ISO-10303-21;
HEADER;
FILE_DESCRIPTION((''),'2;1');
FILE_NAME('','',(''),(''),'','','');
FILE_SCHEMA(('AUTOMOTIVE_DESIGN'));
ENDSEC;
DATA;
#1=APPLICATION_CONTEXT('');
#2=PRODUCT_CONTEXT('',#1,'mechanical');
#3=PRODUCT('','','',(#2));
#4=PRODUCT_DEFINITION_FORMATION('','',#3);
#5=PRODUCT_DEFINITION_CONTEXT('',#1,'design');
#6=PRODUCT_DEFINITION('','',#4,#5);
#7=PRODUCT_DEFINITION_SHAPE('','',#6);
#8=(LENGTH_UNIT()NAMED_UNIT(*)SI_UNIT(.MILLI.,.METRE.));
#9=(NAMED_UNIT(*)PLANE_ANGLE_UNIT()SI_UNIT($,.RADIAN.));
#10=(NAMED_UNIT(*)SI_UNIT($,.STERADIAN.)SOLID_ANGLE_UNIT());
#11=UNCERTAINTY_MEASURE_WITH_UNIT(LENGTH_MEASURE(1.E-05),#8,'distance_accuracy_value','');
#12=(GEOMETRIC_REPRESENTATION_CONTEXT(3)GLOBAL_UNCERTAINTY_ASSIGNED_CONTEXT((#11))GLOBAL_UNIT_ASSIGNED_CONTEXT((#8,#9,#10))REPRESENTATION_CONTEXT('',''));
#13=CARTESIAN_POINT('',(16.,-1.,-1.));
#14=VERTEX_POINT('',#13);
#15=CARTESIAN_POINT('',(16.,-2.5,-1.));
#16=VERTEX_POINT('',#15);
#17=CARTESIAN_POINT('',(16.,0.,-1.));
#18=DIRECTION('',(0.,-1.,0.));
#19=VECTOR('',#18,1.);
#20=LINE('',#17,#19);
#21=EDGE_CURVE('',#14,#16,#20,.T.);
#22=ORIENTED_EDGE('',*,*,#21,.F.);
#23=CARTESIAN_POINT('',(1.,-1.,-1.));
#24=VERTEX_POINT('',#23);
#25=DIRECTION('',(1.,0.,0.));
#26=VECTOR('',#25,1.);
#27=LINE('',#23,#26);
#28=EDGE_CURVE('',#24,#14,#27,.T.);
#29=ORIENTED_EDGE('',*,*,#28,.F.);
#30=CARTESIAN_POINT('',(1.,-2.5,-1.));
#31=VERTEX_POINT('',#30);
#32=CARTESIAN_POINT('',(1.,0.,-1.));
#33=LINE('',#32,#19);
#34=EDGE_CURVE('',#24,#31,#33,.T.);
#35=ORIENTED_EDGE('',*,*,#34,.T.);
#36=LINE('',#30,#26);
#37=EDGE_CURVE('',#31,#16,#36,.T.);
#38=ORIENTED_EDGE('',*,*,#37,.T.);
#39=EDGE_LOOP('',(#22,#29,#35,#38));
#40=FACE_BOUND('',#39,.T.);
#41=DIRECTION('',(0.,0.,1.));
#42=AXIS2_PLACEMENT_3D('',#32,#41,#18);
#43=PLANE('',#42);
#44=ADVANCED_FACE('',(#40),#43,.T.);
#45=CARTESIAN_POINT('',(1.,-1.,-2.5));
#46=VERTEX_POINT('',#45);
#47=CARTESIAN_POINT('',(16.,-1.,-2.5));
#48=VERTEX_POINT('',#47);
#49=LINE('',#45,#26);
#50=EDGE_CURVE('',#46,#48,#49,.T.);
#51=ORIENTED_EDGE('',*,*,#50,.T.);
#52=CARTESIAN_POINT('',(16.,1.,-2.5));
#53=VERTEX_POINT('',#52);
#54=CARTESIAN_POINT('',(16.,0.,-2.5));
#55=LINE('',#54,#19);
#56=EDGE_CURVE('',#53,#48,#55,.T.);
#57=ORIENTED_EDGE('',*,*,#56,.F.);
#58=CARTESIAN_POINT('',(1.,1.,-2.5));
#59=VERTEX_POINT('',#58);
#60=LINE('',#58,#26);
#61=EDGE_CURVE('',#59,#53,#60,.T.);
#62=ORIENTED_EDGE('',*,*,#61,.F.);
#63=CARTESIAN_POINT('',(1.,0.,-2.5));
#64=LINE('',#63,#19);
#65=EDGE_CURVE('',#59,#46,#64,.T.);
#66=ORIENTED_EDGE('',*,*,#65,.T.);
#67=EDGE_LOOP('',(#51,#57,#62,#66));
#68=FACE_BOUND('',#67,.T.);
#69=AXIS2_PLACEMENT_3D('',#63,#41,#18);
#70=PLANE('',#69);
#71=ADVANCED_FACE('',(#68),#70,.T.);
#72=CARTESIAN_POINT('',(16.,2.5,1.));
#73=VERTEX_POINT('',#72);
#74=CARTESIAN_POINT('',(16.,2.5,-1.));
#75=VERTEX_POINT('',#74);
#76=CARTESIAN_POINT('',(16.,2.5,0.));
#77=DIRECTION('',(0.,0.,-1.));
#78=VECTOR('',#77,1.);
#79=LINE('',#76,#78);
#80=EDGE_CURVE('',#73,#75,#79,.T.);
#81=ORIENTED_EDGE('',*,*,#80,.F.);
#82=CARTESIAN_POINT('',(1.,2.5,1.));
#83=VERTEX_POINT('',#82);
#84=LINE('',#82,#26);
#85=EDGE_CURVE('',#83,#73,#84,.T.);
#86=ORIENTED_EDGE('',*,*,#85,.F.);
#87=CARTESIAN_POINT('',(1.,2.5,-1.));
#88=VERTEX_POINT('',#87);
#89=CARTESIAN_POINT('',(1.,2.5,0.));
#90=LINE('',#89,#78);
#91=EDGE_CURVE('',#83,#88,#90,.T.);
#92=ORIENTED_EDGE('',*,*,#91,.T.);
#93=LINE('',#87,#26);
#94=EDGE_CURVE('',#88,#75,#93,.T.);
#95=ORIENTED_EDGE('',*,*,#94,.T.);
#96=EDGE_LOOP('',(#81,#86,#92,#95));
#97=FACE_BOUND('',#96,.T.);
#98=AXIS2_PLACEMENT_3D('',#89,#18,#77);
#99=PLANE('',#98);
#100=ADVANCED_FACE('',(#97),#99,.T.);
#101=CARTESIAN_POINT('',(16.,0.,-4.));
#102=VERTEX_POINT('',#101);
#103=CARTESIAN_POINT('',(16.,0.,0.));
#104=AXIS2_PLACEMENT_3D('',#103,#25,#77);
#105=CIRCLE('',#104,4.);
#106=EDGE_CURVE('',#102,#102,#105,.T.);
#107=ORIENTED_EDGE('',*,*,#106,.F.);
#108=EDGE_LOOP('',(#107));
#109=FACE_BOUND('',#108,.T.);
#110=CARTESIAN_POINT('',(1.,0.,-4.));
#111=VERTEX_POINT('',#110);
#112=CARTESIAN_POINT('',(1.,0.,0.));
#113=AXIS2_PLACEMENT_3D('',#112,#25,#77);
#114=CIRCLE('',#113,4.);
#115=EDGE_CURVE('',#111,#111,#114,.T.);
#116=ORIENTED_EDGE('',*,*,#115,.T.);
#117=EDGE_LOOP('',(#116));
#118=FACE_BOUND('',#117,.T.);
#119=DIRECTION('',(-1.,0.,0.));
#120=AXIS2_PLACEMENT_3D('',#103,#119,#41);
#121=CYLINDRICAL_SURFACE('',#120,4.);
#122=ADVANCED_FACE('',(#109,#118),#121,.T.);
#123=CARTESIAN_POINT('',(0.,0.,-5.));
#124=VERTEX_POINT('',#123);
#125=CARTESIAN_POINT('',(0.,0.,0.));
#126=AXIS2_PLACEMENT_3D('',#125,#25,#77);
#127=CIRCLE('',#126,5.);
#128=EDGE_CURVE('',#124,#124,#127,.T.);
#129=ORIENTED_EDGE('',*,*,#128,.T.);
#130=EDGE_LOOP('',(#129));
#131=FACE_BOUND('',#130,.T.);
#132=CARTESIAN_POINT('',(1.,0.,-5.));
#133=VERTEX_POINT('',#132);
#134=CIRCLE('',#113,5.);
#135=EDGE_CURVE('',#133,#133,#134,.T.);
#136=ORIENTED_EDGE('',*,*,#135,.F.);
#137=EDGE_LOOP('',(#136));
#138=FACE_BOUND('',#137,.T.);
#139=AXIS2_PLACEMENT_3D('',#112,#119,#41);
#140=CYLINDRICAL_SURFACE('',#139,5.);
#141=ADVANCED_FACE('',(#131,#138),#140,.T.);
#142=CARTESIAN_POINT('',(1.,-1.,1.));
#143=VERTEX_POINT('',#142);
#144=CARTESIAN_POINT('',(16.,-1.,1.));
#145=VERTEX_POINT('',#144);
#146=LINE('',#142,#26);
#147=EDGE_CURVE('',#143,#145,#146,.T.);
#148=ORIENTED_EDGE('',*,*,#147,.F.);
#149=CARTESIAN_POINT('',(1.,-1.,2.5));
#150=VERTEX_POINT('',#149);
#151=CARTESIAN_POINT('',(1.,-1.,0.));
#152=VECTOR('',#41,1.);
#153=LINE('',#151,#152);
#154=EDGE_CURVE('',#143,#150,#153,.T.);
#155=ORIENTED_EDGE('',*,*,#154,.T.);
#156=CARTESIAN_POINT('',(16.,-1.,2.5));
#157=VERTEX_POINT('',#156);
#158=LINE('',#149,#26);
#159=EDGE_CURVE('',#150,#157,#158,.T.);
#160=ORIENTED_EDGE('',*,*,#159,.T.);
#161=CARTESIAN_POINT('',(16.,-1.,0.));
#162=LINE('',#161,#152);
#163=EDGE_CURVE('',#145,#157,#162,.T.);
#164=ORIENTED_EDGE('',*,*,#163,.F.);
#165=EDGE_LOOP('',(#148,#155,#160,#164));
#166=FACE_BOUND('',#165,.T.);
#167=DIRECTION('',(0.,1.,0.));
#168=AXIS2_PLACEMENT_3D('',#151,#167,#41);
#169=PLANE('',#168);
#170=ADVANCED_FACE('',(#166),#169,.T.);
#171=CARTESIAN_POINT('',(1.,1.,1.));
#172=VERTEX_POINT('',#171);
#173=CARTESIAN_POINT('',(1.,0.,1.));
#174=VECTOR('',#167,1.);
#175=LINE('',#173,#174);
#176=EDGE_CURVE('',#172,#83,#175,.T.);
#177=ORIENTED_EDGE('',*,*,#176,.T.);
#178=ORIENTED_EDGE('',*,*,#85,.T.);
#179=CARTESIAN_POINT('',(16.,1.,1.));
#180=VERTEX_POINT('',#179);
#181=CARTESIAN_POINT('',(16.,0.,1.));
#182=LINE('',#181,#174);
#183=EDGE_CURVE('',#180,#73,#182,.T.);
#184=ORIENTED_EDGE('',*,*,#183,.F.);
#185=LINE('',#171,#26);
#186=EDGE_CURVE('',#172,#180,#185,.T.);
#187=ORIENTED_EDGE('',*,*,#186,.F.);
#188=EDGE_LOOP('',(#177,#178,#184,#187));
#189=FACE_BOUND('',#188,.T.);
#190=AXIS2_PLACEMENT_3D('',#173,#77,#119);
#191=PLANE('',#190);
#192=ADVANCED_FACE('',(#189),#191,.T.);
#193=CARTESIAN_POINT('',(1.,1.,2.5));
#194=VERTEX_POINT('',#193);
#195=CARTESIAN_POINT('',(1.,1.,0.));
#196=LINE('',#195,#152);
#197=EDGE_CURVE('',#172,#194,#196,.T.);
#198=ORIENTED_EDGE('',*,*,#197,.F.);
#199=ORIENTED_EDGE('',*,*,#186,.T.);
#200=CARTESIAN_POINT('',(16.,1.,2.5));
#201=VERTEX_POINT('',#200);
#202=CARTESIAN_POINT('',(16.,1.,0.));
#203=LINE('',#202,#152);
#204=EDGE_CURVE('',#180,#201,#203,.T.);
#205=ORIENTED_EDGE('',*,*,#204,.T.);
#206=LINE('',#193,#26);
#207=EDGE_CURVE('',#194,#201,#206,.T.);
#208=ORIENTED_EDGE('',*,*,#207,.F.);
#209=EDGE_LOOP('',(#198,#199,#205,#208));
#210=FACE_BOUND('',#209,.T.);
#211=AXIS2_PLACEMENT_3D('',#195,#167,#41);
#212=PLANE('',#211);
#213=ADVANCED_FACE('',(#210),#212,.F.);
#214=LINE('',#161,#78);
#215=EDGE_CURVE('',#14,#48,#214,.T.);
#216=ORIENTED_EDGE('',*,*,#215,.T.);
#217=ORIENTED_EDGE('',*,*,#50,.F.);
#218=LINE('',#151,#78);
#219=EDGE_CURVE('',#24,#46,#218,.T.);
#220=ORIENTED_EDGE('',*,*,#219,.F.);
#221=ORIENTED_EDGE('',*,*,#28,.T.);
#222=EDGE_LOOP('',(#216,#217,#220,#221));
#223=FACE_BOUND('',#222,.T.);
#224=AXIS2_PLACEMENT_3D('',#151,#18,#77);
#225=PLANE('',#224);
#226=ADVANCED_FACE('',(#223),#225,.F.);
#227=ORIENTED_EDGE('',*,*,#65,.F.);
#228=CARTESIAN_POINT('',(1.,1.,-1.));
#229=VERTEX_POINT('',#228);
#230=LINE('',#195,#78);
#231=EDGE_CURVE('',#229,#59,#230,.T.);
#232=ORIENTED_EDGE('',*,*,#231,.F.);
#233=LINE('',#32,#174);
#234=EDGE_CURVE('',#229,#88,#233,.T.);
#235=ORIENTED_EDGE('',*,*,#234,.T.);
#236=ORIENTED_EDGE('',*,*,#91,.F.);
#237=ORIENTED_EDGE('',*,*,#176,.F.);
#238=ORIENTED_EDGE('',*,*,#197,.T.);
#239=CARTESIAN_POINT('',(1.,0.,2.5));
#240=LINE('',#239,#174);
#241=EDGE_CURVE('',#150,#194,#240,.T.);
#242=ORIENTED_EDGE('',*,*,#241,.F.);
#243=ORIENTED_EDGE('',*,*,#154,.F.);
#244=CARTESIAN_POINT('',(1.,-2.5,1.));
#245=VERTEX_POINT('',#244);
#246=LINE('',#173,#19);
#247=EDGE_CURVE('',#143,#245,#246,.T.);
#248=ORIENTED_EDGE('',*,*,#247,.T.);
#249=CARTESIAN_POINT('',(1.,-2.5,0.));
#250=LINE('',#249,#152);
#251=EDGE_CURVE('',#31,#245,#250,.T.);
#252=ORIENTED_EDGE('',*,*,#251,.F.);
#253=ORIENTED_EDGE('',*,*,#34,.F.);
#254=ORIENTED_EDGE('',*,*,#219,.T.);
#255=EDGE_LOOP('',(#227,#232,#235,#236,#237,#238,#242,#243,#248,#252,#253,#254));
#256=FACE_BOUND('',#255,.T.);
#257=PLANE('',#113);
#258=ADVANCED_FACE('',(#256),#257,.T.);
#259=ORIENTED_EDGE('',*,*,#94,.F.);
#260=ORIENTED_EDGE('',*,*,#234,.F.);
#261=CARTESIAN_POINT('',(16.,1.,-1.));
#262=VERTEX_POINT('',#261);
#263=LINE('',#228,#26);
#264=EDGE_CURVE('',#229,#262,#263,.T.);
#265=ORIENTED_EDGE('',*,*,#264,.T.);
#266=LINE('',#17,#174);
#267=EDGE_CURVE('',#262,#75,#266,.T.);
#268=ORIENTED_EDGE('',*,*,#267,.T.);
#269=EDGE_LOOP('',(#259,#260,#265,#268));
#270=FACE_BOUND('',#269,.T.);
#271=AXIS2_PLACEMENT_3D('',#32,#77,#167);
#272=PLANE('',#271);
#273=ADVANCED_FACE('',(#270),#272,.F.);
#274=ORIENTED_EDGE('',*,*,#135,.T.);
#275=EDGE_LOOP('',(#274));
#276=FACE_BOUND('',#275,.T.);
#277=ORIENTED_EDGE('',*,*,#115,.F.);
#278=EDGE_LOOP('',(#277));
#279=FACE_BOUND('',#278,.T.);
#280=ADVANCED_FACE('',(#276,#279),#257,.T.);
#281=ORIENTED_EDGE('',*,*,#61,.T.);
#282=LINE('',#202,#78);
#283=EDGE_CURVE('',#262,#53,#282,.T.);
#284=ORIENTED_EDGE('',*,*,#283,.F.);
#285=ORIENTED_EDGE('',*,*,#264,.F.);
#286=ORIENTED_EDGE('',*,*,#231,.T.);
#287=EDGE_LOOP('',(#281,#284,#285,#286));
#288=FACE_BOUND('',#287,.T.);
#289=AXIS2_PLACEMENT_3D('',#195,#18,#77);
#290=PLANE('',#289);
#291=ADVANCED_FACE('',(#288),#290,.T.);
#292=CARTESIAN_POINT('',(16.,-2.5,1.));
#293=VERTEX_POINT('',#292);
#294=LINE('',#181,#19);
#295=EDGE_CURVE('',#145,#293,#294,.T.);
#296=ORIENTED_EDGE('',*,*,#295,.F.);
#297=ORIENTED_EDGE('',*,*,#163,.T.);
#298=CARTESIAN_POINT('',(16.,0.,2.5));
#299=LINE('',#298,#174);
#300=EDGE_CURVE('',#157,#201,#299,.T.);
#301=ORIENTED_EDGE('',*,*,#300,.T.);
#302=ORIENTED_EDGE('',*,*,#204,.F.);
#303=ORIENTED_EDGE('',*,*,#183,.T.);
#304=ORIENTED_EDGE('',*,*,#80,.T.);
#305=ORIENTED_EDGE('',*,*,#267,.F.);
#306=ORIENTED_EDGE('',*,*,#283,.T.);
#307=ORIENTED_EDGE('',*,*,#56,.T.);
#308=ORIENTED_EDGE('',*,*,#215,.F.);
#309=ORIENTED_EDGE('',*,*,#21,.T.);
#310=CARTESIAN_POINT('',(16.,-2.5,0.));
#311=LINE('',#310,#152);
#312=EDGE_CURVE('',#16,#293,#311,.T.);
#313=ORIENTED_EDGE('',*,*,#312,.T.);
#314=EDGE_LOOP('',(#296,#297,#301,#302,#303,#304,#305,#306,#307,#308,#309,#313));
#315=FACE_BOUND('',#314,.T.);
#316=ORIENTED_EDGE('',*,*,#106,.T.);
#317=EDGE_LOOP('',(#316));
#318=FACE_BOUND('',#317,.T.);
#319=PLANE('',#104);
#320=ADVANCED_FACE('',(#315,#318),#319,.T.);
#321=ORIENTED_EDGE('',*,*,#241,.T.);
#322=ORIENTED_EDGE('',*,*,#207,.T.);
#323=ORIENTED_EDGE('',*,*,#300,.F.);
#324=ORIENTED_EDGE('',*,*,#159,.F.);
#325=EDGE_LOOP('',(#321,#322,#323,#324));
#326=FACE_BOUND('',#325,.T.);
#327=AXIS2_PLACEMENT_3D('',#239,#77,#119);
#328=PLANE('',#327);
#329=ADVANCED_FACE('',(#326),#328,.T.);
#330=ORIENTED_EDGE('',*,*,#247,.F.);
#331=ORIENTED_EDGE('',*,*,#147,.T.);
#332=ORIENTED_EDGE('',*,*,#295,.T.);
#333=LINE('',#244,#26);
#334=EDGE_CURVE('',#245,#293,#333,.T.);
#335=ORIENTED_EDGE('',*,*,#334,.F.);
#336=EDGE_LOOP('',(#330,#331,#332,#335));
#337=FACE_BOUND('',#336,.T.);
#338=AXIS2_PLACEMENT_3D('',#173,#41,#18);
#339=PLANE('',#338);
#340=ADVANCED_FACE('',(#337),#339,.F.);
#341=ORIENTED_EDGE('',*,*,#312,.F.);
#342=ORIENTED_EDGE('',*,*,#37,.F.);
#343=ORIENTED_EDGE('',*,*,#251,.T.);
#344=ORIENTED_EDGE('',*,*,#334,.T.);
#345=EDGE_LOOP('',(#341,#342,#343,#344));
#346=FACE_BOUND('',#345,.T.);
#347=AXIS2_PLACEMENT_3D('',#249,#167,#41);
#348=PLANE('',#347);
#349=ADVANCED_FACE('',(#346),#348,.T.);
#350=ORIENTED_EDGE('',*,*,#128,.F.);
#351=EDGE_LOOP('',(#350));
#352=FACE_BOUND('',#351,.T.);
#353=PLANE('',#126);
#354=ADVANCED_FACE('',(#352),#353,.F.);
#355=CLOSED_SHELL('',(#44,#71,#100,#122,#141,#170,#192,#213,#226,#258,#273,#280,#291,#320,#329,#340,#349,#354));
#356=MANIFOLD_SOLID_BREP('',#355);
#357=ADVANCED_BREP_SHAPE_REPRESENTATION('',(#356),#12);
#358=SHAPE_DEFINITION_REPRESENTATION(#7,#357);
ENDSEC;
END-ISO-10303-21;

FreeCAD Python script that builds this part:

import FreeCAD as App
import Part
import Sketcher
Q = App.Units.Quantity


def add_polygon(sketch, points):
    """Adds a closed chain of lines whose ends are joined by coincident constraints."""
    first, n = sketch.GeometryCount, len(points)
    for a, b in zip(points, points[1:] + points[:1]):
        sketch.addGeometry(Part.LineSegment(App.Vector(*a, 0), App.Vector(*b, 0)), False)
    for i in range(n):
        sketch.addConstraint(Sketcher.Constraint("Coincident", first + i, 2, first + (i + 1) % n, 1))

doc = App.newDocument("Part")
body = doc.addObject("PartDesign::Body", "Body")

# Sketch on YZ plane
sketch1 = body.newObject("Sketcher::SketchObject", "Sketch")
sketch1.AttachmentSupport = (doc.getObject("YZ_Plane"), [""])
sketch1.MapMode = "FlatFace"
sketch1.addGeometry(Part.Circle(App.Vector(0, 0, 0), App.Vector(0, 0, 1), 5), False)
sketch1.addConstraint(Sketcher.Constraint("Coincident", 0, 3, -1, 1))
sketch1.addConstraint(Sketcher.Constraint("Diameter", 0, Q("10 mm")))
pad1 = body.newObject("PartDesign::Pad", "Pad")
pad1.Profile = sketch1
pad1.Length = 1

# Sketch on YZ plane
sketch2 = body.newObject("Sketcher::SketchObject", "Sketch001")
sketch2.AttachmentSupport = (doc.getObject("YZ_Plane"), [""])
sketch2.MapMode = "FlatFace"
sketch2.AttachmentOffset = App.Placement(App.Vector(0, 0, 1), App.Rotation())
sketch2.addGeometry(Part.Circle(App.Vector(0, 0, 0), App.Vector(0, 0, 1), 4), False)
sketch2.addConstraint(Sketcher.Constraint("Coincident", 0, 3, -1, 1))
sketch2.addConstraint(Sketcher.Constraint("Diameter", 0, Q("8 mm")))
pad2 = body.newObject("PartDesign::Pad", "Pad001")
pad2.Profile = sketch2
pad2.Length = 15

# Sketch on YZ plane
sketch3 = body.newObject("Sketcher::SketchObject", "Sketch002")
sketch3.AttachmentSupport = (doc.getObject("YZ_Plane"), [""])
sketch3.MapMode = "FlatFace"
sketch3.AttachmentOffset = App.Placement(App.Vector(0, 0, 16), App.Rotation())
add_polygon(sketch3, [(2.5, -1), (2.5, 1), (1, 1), (1, 2.5), (-1, 2.5), (-1, 1), (-2.5, 1), (-2.5, -1), (-1, -1), (-1, -2.5), (1, -2.5), (1, -1)])  # lines 0-11
sketch3.addConstraint(Sketcher.Constraint("Vertical", 0))
sketch3.addConstraint(Sketcher.Constraint("Horizontal", 1))
sketch3.addConstraint(Sketcher.Constraint("Vertical", 2))
sketch3.addConstraint(Sketcher.Constraint("Horizontal", 3))
sketch3.addConstraint(Sketcher.Constraint("Vertical", 4))
sketch3.addConstraint(Sketcher.Constraint("Horizontal", 5))
sketch3.addConstraint(Sketcher.Constraint("Vertical", 6))
sketch3.addConstraint(Sketcher.Constraint("Horizontal", 7))
sketch3.addConstraint(Sketcher.Constraint("Vertical", 8))
sketch3.addConstraint(Sketcher.Constraint("Horizontal", 9))
sketch3.addConstraint(Sketcher.Constraint("Vertical", 10))
sketch3.addConstraint(Sketcher.Constraint("Horizontal", 11))
sketch3.addConstraint(Sketcher.Constraint("Symmetric", 0, 2, 6, 2, -1, 1))
sketch3.addConstraint(Sketcher.Constraint("Symmetric", 2, 2, 8, 2, -1, 1))
sketch3.addConstraint(Sketcher.Constraint("Symmetric", 4, 2, 10, 2, -1, 1))
sketch3.addConstraint(Sketcher.Constraint("Symmetric", 1, 2, 4, 2, -2))
sketch3.addConstraint(Sketcher.Constraint("Equal", 9, 0))
sketch3.addConstraint(Sketcher.Constraint("Equal", 11, 2))
sketch3.addConstraint(Sketcher.Constraint("DistanceX", 3, 2, 3, 1, Q("2 mm")))
sketch3.addConstraint(Sketcher.Constraint("DistanceX", 1, 2, 1, 1, Q("1.5 mm")))
pocket1 = body.newObject("PartDesign::Pocket", "Pocket")
pocket1.Profile = sketch3
pocket1.Length = 15

doc.recompute()
